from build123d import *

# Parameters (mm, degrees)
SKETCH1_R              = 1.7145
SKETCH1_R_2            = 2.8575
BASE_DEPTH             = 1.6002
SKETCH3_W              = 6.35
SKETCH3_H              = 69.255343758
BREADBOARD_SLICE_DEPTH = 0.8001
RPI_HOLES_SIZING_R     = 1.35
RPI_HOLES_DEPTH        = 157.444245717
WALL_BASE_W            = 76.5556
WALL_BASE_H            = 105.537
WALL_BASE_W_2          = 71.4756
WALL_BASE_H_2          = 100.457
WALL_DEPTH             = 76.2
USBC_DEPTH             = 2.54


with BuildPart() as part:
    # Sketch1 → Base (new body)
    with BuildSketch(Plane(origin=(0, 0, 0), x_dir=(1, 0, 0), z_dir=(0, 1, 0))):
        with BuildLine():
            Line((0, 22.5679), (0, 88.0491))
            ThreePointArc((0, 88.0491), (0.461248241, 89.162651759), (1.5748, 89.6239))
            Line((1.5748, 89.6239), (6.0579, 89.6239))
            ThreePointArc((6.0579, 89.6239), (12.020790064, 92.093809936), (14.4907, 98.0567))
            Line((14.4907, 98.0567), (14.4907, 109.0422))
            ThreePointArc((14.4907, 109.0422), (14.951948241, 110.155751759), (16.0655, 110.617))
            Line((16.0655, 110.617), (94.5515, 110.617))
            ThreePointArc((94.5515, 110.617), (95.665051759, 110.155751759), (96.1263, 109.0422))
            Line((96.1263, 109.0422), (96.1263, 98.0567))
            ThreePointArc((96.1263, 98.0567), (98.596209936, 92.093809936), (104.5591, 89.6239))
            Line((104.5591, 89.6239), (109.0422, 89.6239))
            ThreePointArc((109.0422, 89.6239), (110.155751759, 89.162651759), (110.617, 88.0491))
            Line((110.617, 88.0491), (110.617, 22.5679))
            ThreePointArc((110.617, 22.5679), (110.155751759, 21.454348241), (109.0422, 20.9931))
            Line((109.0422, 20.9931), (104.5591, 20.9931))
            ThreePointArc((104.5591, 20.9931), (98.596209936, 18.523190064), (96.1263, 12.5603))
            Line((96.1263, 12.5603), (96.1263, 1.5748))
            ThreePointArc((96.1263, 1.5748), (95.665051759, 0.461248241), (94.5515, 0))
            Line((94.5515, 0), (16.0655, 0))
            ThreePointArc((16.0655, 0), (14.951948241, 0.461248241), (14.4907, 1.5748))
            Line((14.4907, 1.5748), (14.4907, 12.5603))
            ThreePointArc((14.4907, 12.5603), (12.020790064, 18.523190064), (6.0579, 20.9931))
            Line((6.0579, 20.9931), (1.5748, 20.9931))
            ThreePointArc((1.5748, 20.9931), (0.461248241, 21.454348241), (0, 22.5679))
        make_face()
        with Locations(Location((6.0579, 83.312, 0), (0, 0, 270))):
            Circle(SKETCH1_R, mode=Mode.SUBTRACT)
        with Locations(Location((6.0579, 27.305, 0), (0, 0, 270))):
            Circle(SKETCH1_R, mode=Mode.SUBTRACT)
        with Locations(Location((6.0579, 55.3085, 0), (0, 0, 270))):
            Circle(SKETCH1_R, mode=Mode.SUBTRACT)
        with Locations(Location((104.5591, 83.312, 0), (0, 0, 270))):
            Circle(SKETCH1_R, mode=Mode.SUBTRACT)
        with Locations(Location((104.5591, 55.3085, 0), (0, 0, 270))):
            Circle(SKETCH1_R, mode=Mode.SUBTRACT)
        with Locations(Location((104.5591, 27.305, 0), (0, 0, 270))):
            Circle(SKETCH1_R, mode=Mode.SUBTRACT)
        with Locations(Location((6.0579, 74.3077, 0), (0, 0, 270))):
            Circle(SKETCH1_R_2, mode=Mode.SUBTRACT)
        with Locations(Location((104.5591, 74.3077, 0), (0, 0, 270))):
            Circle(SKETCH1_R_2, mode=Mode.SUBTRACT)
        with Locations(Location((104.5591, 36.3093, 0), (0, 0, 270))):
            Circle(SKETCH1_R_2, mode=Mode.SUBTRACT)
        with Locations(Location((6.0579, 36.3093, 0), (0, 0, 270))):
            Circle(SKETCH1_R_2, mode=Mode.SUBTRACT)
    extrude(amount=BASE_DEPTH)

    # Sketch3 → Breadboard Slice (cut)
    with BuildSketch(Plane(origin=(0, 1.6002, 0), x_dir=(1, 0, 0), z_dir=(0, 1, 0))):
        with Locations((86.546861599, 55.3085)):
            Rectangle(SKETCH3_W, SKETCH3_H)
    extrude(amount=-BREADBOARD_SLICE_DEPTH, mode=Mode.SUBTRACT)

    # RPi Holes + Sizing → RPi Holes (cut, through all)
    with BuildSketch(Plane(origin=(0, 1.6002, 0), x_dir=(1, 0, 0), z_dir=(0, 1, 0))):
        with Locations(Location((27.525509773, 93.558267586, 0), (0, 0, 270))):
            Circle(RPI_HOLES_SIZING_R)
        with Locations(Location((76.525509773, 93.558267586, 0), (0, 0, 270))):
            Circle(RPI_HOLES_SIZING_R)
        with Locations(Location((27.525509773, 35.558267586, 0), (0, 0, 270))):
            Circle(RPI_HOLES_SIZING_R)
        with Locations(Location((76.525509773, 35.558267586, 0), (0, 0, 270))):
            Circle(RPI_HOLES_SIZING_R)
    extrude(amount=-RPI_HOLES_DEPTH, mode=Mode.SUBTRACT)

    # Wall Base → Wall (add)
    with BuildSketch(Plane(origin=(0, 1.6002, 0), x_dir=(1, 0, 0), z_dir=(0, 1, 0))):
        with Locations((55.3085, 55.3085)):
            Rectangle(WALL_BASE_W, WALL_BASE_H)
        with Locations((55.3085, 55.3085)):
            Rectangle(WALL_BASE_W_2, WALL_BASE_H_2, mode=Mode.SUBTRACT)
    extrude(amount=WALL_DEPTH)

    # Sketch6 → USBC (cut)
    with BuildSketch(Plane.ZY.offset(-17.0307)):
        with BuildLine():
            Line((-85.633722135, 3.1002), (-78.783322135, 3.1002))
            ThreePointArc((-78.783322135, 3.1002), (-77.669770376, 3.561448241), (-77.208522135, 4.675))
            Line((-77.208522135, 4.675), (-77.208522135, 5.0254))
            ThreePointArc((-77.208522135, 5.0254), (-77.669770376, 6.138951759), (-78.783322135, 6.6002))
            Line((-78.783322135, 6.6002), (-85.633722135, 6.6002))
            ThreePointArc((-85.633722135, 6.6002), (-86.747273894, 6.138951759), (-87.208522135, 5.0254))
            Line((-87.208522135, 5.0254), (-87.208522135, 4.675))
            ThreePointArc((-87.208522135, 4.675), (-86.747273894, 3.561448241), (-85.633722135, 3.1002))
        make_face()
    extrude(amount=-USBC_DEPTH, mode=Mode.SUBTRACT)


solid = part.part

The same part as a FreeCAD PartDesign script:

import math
import FreeCAD as App
import Part
import Sketcher
from FreeCAD import Vector
Q = App.Units.Quantity

doc = App.newDocument("Part")
body = doc.addObject("PartDesign::Body", "Body")

# Sketch on XZ plane
sketch1 = body.newObject("Sketcher::SketchObject", "Sketch")
sketch1.AttachmentSupport = (doc.getObject("XZ_Plane"), [""])
sketch1.MapMode = "FlatFace"
sketch1.addGeometry([
    Part.LineSegment(Vector(0, -88, 0), Vector(0, -22.6, 0)),  # 0
    Part.ArcOfCircle(Part.Circle(Vector(1.6, -22.6, 0), Vector(0, 0, 1), 1.6), math.radians(90), math.radians(180)),  # 1
    Part.LineSegment(Vector(1.6, -21, 0), Vector(6.1, -21, 0)),  # 2
    Part.ArcOfCircle(Part.Circle(Vector(6.1, -12.6, 0), Vector(0, 0, 1), 8.4), math.radians(-90), math.radians(0)),  # 3
    Part.LineSegment(Vector(14.5, -12.6, 0), Vector(14.5, -1.6, 0)),  # 4
    Part.ArcOfCircle(Part.Circle(Vector(16.1, -1.6, 0), Vector(0, 0, 1), 1.6), math.radians(90), math.radians(180)),  # 5
    Part.LineSegment(Vector(16.1, 0, 0), Vector(94.6, 0, 0)),  # 6
    Part.ArcOfCircle(Part.Circle(Vector(94.6, -1.6, 0), Vector(0, 0, 1), 1.6), math.radians(0), math.radians(90)),  # 7
    Part.LineSegment(Vector(96.1, -1.6, 0), Vector(96.1, -12.6, 0)),  # 8
    Part.ArcOfCircle(Part.Circle(Vector(104.6, -12.6, 0), Vector(0, 0, 1), 8.4), math.radians(-180), math.radians(-90)),  # 9
    Part.LineSegment(Vector(104.6, -21, 0), Vector(109, -21, 0)),  # 10
    Part.ArcOfCircle(Part.Circle(Vector(109, -22.6, 0), Vector(0, 0, 1), 1.6), math.radians(0), math.radians(90)),  # 11
    Part.LineSegment(Vector(110.6, -22.6, 0), Vector(110.6, -88, 0)),  # 12
    Part.ArcOfCircle(Part.Circle(Vector(109, -88, 0), Vector(0, 0, 1), 1.6), math.radians(-90), math.radians(0)),  # 13
    Part.LineSegment(Vector(109, -89.6, 0), Vector(104.6, -89.6, 0)),  # 14
    Part.ArcOfCircle(Part.Circle(Vector(104.6, -98.1, 0), Vector(0, 0, 1), 8.4), math.radians(90), math.radians(180)),  # 15
    Part.LineSegment(Vector(96.1, -98.1, 0), Vector(96.1, -109, 0)),  # 16
    Part.ArcOfCircle(Part.Circle(Vector(94.6, -109, 0), Vector(0, 0, 1), 1.6), math.radians(-90), math.radians(0)),  # 17
    Part.LineSegment(Vector(94.6, -110.6, 0), Vector(16.1, -110.6, 0)),  # 18
    Part.ArcOfCircle(Part.Circle(Vector(16.1, -109, 0), Vector(0, 0, 1), 1.6), math.radians(180), math.radians(270)),  # 19
    Part.LineSegment(Vector(14.5, -109, 0), Vector(14.5, -98.1, 0)),  # 20
    Part.ArcOfCircle(Part.Circle(Vector(6.1, -98.1, 0), Vector(0, 0, 1), 8.4), math.radians(0), math.radians(90)),  # 21
    Part.LineSegment(Vector(6.1, -89.6, 0), Vector(1.6, -89.6, 0)),  # 22
    Part.ArcOfCircle(Part.Circle(Vector(1.6, -88, 0), Vector(0, 0, 1), 1.6), math.radians(180), math.radians(270)),  # 23
    Part.Circle(Vector(104.6, -27.3, 0), Vector(0, 0, 1), 1.7),  # 24
    Part.Circle(Vector(104.6, -36.3, 0), Vector(0, 0, 1), 2.9),  # 25
    Part.Circle(Vector(6.1, -27.3, 0), Vector(0, 0, 1), 1.7),  # 26
    Part.Circle(Vector(6.1, -36.3, 0), Vector(0, 0, 1), 2.9),  # 27
    Part.Circle(Vector(104.6, -55.3, 0), Vector(0, 0, 1), 1.7),  # 28
    Part.Circle(Vector(104.6, -74.3, 0), Vector(0, 0, 1), 2.9),  # 29
    Part.Circle(Vector(104.6, -83.3, 0), Vector(0, 0, 1), 1.7),  # 30
    Part.Circle(Vector(6.1, -55.3, 0), Vector(0, 0, 1), 1.7),  # 31
    Part.Circle(Vector(6.1, -74.3, 0), Vector(0, 0, 1), 2.9),  # 32
    Part.Circle(Vector(6.1, -83.3, 0), Vector(0, 0, 1), 1.7),  # 33
], False)
sketch1.addConstraint([
    Sketcher.Constraint("Tangent", 0, 2, 1, 2),
    Sketcher.Constraint("Tangent", 1, 1, 2, 1),
    Sketcher.Constraint("Tangent", 2, 2, 3, 1),
    Sketcher.Constraint("Tangent", 3, 2, 4, 1),
    Sketcher.Constraint("Tangent", 4, 2, 5, 2),
    Sketcher.Constraint("Tangent", 5, 1, 6, 1),
    Sketcher.Constraint("Tangent", 6, 2, 7, 2),
    Sketcher.Constraint("Tangent", 7, 1, 8, 1),
    Sketcher.Constraint("Tangent", 8, 2, 9, 1),
    Sketcher.Constraint("Tangent", 9, 2, 10, 1),
    Sketcher.Constraint("Tangent", 10, 2, 11, 2),
    Sketcher.Constraint("Tangent", 11, 1, 12, 1),
    Sketcher.Constraint("Tangent", 12, 2, 13, 2),
    Sketcher.Constraint("Tangent", 13, 1, 14, 1),
    Sketcher.Constraint("Tangent", 14, 2, 15, 1),
    Sketcher.Constraint("Tangent", 15, 2, 16, 1),
    Sketcher.Constraint("Tangent", 16, 2, 17, 2),
    Sketcher.Constraint("Tangent", 17, 1, 18, 1),
    Sketcher.Constraint("Tangent", 18, 2, 19, 2),
    Sketcher.Constraint("Tangent", 19, 1, 20, 1),
    Sketcher.Constraint("Tangent", 20, 2, 21, 1),
    Sketcher.Constraint("Tangent", 21, 2, 22, 1),
    Sketcher.Constraint("Tangent", 22, 2, 23, 2),
    Sketcher.Constraint("Tangent", 23, 1, 0, 1),
    Sketcher.Constraint("Vertical", 0),
    Sketcher.Constraint("Horizontal", 2),
    Sketcher.Constraint("Vertical", 4),
    Sketcher.Constraint("Horizontal", 6),
    Sketcher.Constraint("Vertical", 8),
    Sketcher.Constraint("Horizontal", 10),
    Sketcher.Constraint("Vertical", 12),
    Sketcher.Constraint("Horizontal", 14),
    Sketcher.Constraint("Vertical", 16),
    Sketcher.Constraint("Horizontal", 18),
    Sketcher.Constraint("Vertical", 20),
    Sketcher.Constraint("Horizontal", 22),
    Sketcher.Constraint("Equal", 1, 5),
    Sketcher.Constraint("Equal", 5, 7),
    Sketcher.Constraint("Equal", 3, 9),
    Sketcher.Constraint("Equal", 7, 11),
    Sketcher.Constraint("Equal", 11, 13),
    Sketcher.Constraint("Equal", 9, 15),
    Sketcher.Constraint("Equal", 13, 17),
    Sketcher.Constraint("Equal", 17, 19),
    Sketcher.Constraint("Equal", 15, 21),
    Sketcher.Constraint("Equal", 19, 23),
    Sketcher.Constraint("Equal", 24, 26),
    Sketcher.Constraint("Equal", 25, 27),
    Sketcher.Constraint("Equal", 26, 28),
    Sketcher.Constraint("Equal", 27, 29),
    Sketcher.Constraint("Equal", 28, 30),
    Sketcher.Constraint("Equal", 30, 31),
    Sketcher.Constraint("Equal", 29, 32),
    Sketcher.Constraint("Equal", 31, 33),
    Sketcher.Constraint("PointOnObject", 0, 2, -2),
    Sketcher.Constraint("PointOnObject", 5, 1, -1),
    Sketcher.Constraint("Horizontal", 3, 3, 9, 3),
    Sketcher.Constraint("Horizontal", 15, 3, 21, 3),
    Sketcher.Constraint("Horizontal", 24, 3, 26, 3),
    Sketcher.Constraint("Horizontal", 25, 3, 27, 3),
    Sketcher.Constraint("Horizontal", 28, 3, 31, 3),
    Sketcher.Constraint("Horizontal", 29, 3, 32, 3),
    Sketcher.Constraint("Horizontal", 30, 3, 33, 3),
    Sketcher.Constraint("Vertical", 9, 3, 15, 3),
    Sketcher.Constraint("Vertical", 5, 3, 19, 3),
    Sketcher.Constraint("Vertical", 15, 3, 24, 3),
    Sketcher.Constraint("Vertical", 24, 3, 25, 3),
    Sketcher.Constraint("Vertical", 21, 3, 26, 3),
    Sketcher.Constraint("Vertical", 26, 3, 27, 3),
    Sketcher.Constraint("Vertical", 25, 3, 28, 3),
    Sketcher.Constraint("Vertical", 28, 3, 29, 3),
    Sketcher.Constraint("Vertical", 29, 3, 30, 3),
    Sketcher.Constraint("Vertical", 27, 3, 31, 3),
    Sketcher.Constraint("Vertical", 31, 3, 32, 3),
    Sketcher.Constraint("Vertical", 32, 3, 33, 3),
    Sketcher.Constraint("Equal", 2, 10),
    Sketcher.Constraint("Equal", 8, 16),
    Sketcher.Constraint("Diameter", 24, Q("0.135 in")),
    Sketcher.Constraint("Diameter", 25, Q("0.225 in")),
    Sketcher.Constraint("Radius", 1, Q("0.062 in")),
    Sketcher.Constraint("Radius", 3, Q("0.332 in")),
    Sketcher.Constraint("DistanceX", 6, 1, 6, 2, Q("3.09 in")),
    Sketcher.Constraint("DistanceY", 0, 1, 0, 2, Q("2.578 in")),
    Sketcher.Constraint("DistanceY", 30, 3, -1, 1, Q("3.28 in")),
    Sketcher.Constraint("DistanceX", 2, 1, 2, 2, Q("0.1765 in")),
    Sketcher.Constraint("DistanceY", 4, 1, 4, 2, Q("0.4325 in")),
    Sketcher.Constraint("DistanceY", 24, 3, -1, 1, Q("1.075 in")),
    Sketcher.Constraint("DistanceY", 25, 3, 11, 3, Q("0.541 in")),
    Sketcher.Constraint("DistanceY", 28, 3, 25, 3, Q("0.748 in")),
    Sketcher.Constraint("DistanceY", 13, 3, 29, 3, Q("0.541 in")),
])
pad1 = body.newObject("PartDesign::Pad", "Pad")
pad1.Profile = sketch1
pad1.Length = Q("0.063 in")
pad1.Reversed = True

# Sketch on XZ plane
sketch2 = body.newObject("Sketcher::SketchObject", "Sketch001")
sketch2.AttachmentSupport = (doc.getObject("XZ_Plane"), [""])
sketch2.MapMode = "FlatFace"
sketch2.AttachmentOffset = App.Placement(Vector(0, 0, -0.063 * 25.4), App.Rotation())
sketch2.addGeometry([
    Part.LineSegment(Vector(83, -90, 0), Vector(83, -21, 0)),
    Part.LineSegment(Vector(83, -21, 0), Vector(90, -21, 0)),
    Part.LineSegment(Vector(90, -21, 0), Vector(90, -90, 0)),
    Part.LineSegment(Vector(90, -90, 0), Vector(83, -90, 0)),
], False)
sketch2.addConstraint([
    Sketcher.Constraint("Coincident", 0, 2, 1, 1),
    Sketcher.Constraint("Coincident", 1, 2, 2, 1),
    Sketcher.Constraint("Coincident", 2, 2, 3, 1),
    Sketcher.Constraint("Coincident", 3, 2, 0, 1),
    Sketcher.Constraint("Vertical", 0),
    Sketcher.Constraint("Horizontal", 1),
    Sketcher.Constraint("Vertical", 2),
    Sketcher.Constraint("Horizontal", 3),
    Sketcher.Constraint("DistanceX", 1, 1, 1, 2, Q("0.25 in")),
    Sketcher.Constraint("DistanceY", 0, 1, 0, 2, Q("69.255344 mm")),
    Sketcher.Constraint("DistanceX", -1, 1, 0, 2, Q("83.371862 mm")),
    Sketcher.Constraint("DistanceY", 0, 2, -1, 1, Q("20.680828 mm")),
])
pocket1 = body.newObject("PartDesign::Pocket", "Pocket")
pocket1.Profile = sketch2
pocket1.Length = Q("0.0315 in")
pocket1.Reversed = True

# Sketch on XZ plane
sketch3 = body.newObject("Sketcher::SketchObject", "Sketch002")
sketch3.AttachmentSupport = (doc.getObject("XZ_Plane"), [""])
sketch3.MapMode = "FlatFace"
sketch3.AttachmentOffset = App.Placement(Vector(0, 0, -0.063 * 25.4), App.Rotation())
sketch3.addGeometry([
    Part.Circle(Vector(27.5, -93.6, 0), Vector(0, 0, 1), 1.4),
    Part.Circle(Vector(76.5, -93.6, 0), Vector(0, 0, 1), 1.4),
    Part.Circle(Vector(27.5, -35.6, 0), Vector(0, 0, 1), 1.4),
    Part.Circle(Vector(76.5, -35.6, 0), Vector(0, 0, 1), 1.4),
], False)
sketch3.addConstraint([
    Sketcher.Constraint("Equal", 0, 1),
    Sketcher.Constraint("Equal", 1, 2),
    Sketcher.Constraint("Equal", 2, 3),
    Sketcher.Constraint("Horizontal", 0, 3, 1, 3),
    Sketcher.Constraint("Horizontal", 2, 3, 3, 3),
    Sketcher.Constraint("Vertical", 0, 3, 2, 3),
    Sketcher.Constraint("Vertical", 1, 3, 3, 3),
    Sketcher.Constraint("Diameter", 0, Q("2.7 mm")),
    Sketcher.Constraint("DistanceX", 0, 3, 1, 3, Q("49 mm")),
    Sketcher.Constraint("DistanceY", 0, 3, 2, 3, Q("58 mm")),
    Sketcher.Constraint("DistanceX", -1, 1, 0, 3, Q("27.52551 mm")),
    Sketcher.Constraint("DistanceY", 0, 3, -1, 1, Q("93.558268 mm")),
])
pocket2 = body.newObject("PartDesign::Pocket", "Pocket001")
pocket2.Profile = sketch3
pocket2.Type = "ThroughAll"
pocket2.Reversed = True

# Sketch on XZ plane
sketch4 = body.newObject("Sketcher::SketchObject", "Sketch003")
sketch4.AttachmentSupport = (doc.getObject("XZ_Plane"), [""])
sketch4.MapMode = "FlatFace"
sketch4.AttachmentOffset = App.Placement(Vector(0, 0, -0.063 * 25.4), App.Rotation())
sketch4.addGeometry([
    Part.LineSegment(Vector(17, -108, 0), Vector(17, -3, 0)),  # 0
    Part.LineSegment(Vector(17, -3, 0), Vector(94, -3, 0)),  # 1
    Part.LineSegment(Vector(94, -3, 0), Vector(94, -108, 0)),  # 2
    Part.LineSegment(Vector(94, -108, 0), Vector(17, -108, 0)),  # 3
    Part.LineSegment(Vector(91, -5, 0), Vector(20, -5, 0)),  # 4
    Part.LineSegment(Vector(20, -5, 0), Vector(20, -106, 0)),  # 5
    Part.LineSegment(Vector(20, -106, 0), Vector(91, -106, 0)),  # 6
    Part.LineSegment(Vector(91, -106, 0), Vector(91, -5, 0)),  # 7
], False)
sketch4.addConstraint([
    Sketcher.Constraint("Coincident", 0, 2, 1, 1),
    Sketcher.Constraint("Coincident", 1, 2, 2, 1),
    Sketcher.Constraint("Coincident", 2, 2, 3, 1),
    Sketcher.Constraint("Coincident", 3, 2, 0, 1),
    Sketcher.Constraint("Coincident", 4, 2, 5, 1),
    Sketcher.Constraint("Coincident", 5, 2, 6, 1),
    Sketcher.Constraint("Coincident", 6, 2, 7, 1),
    Sketcher.Constraint("Coincident", 7, 2, 4, 1),
    Sketcher.Constraint("Vertical", 0),
    Sketcher.Constraint("Horizontal", 1),
    Sketcher.Constraint("Vertical", 2),
    Sketcher.Constraint("Horizontal", 3),
    Sketcher.Constraint("Horizontal", 4),
    Sketcher.Constraint("Vertical", 5),
    Sketcher.Constraint("Horizontal", 6),
    Sketcher.Constraint("Vertical", 7),
    Sketcher.Constraint("DistanceY", 0, 2, -1, 1, Q("0.1 in")),
    Sketcher.Constraint("DistanceY", 4, 2, -1, 1, Q("0.2 in")),
    Sketcher.Constraint("DistanceX", 0, 2, 4, 2, Q("0.1 in")),
    Sketcher.Constraint("DistanceY", 3, 2, 5, 2, Q("0.1 in")),
    Sketcher.Constraint("DistanceX", 6, 2, 2, 2, Q("0.1 in")),
    Sketcher.Constraint("DistanceX", 1, 1, 1, 2, Q("3.014 in")),
    Sketcher.Constraint("DistanceY", 0, 1, 0, 2, Q("4.155 in")),
    Sketcher.Constraint("DistanceX", -1, 1, 0, 2, Q("0.6705 in")),
])
pad2 = body.newObject("PartDesign::Pad", "Pad001")
pad2.Profile = sketch4
pad2.Length = Q("3 in")
pad2.Reversed = True

# Sketch on YZ plane
sketch5 = body.newObject("Sketcher::SketchObject", "Sketch004")
sketch5.AttachmentSupport = (doc.getObject("YZ_Plane"), [""])
sketch5.MapMode = "FlatFace"
sketch5.AttachmentOffset = App.Placement(Vector(0, 0, 0.6705 * 25.4), App.Rotation())
sketch5.addGeometry([
    Part.LineSegment(Vector(3.1, -85.63, 0), Vector(3.1, -78.78, 0)),  # 0
    Part.ArcOfCircle(Part.Circle(Vector(4.67, -78.78, 0), Vector(0, 0, 1), 1.57), math.radians(90), math.radians(180)),  # 1
    Part.LineSegment(Vector(4.67, -77.21, 0), Vector(5.03, -77.21, 0)),  # 2
    Part.ArcOfCircle(Part.Circle(Vector(5.03, -78.78, 0), Vector(0, 0, 1), 1.57), math.radians(0), math.radians(90)),  # 3
    Part.LineSegment(Vector(6.6, -78.78, 0), Vector(6.6, -85.63, 0)),  # 4
    Part.ArcOfCircle(Part.Circle(Vector(5.03, -85.63, 0), Vector(0, 0, 1), 1.57), math.radians(-90), math.radians(0)),  # 5
    Part.LineSegment(Vector(5.03, -87.21, 0), Vector(4.67, -87.21, 0)),  # 6
    Part.ArcOfCircle(Part.Circle(Vector(4.67, -85.63, 0), Vector(0, 0, 1), 1.57), math.radians(180), math.radians(270)),  # 7
], False)
sketch5.addConstraint([
    Sketcher.Constraint("Tangent", 0, 2, 1, 2),
    Sketcher.Constraint("Tangent", 1, 1, 2, 1),
    Sketcher.Constraint("Tangent", 2, 2, 3, 2),
    Sketcher.Constraint("Tangent", 3, 1, 4, 1),
    Sketcher.Constraint("Tangent", 4, 2, 5, 2),
    Sketcher.Constraint("Tangent", 5, 1, 6, 1),
    Sketcher.Constraint("Tangent", 6, 2, 7, 2),
    Sketcher.Constraint("Tangent", 7, 1, 0, 1),
    Sketcher.Constraint("Vertical", 0),
    Sketcher.Constraint("Horizontal", 2),
    Sketcher.Constraint("Vertical", 4),
    Sketcher.Constraint("Horizontal", 6),
    Sketcher.Constraint("Equal", 1, 3),
    Sketcher.Constraint("Equal", 3, 5),
    Sketcher.Constraint("Equal", 5, 7),
    Sketcher.Constraint("Radius", 1, Q("0.062 in")),
    Sketcher.Constraint("DistanceX", 2, 1, 2, 2, Q("0.3504 mm")),
    Sketcher.Constraint("DistanceY", 0, 1, 0, 2, Q("6.8504 mm")),
    Sketcher.Constraint("DistanceX", -1, 1, 1, 3, Q("4.675 mm")),
    Sketcher.Constraint("DistanceY", 1, 3, -1, 1, Q("78.783322 mm")),
])
pocket3 = body.newObject("PartDesign::Pocket", "Pocket002")
pocket3.Profile = sketch5
pocket3.Length = Q("0.1 in")
pocket3.Reversed = True

doc.recompute()
